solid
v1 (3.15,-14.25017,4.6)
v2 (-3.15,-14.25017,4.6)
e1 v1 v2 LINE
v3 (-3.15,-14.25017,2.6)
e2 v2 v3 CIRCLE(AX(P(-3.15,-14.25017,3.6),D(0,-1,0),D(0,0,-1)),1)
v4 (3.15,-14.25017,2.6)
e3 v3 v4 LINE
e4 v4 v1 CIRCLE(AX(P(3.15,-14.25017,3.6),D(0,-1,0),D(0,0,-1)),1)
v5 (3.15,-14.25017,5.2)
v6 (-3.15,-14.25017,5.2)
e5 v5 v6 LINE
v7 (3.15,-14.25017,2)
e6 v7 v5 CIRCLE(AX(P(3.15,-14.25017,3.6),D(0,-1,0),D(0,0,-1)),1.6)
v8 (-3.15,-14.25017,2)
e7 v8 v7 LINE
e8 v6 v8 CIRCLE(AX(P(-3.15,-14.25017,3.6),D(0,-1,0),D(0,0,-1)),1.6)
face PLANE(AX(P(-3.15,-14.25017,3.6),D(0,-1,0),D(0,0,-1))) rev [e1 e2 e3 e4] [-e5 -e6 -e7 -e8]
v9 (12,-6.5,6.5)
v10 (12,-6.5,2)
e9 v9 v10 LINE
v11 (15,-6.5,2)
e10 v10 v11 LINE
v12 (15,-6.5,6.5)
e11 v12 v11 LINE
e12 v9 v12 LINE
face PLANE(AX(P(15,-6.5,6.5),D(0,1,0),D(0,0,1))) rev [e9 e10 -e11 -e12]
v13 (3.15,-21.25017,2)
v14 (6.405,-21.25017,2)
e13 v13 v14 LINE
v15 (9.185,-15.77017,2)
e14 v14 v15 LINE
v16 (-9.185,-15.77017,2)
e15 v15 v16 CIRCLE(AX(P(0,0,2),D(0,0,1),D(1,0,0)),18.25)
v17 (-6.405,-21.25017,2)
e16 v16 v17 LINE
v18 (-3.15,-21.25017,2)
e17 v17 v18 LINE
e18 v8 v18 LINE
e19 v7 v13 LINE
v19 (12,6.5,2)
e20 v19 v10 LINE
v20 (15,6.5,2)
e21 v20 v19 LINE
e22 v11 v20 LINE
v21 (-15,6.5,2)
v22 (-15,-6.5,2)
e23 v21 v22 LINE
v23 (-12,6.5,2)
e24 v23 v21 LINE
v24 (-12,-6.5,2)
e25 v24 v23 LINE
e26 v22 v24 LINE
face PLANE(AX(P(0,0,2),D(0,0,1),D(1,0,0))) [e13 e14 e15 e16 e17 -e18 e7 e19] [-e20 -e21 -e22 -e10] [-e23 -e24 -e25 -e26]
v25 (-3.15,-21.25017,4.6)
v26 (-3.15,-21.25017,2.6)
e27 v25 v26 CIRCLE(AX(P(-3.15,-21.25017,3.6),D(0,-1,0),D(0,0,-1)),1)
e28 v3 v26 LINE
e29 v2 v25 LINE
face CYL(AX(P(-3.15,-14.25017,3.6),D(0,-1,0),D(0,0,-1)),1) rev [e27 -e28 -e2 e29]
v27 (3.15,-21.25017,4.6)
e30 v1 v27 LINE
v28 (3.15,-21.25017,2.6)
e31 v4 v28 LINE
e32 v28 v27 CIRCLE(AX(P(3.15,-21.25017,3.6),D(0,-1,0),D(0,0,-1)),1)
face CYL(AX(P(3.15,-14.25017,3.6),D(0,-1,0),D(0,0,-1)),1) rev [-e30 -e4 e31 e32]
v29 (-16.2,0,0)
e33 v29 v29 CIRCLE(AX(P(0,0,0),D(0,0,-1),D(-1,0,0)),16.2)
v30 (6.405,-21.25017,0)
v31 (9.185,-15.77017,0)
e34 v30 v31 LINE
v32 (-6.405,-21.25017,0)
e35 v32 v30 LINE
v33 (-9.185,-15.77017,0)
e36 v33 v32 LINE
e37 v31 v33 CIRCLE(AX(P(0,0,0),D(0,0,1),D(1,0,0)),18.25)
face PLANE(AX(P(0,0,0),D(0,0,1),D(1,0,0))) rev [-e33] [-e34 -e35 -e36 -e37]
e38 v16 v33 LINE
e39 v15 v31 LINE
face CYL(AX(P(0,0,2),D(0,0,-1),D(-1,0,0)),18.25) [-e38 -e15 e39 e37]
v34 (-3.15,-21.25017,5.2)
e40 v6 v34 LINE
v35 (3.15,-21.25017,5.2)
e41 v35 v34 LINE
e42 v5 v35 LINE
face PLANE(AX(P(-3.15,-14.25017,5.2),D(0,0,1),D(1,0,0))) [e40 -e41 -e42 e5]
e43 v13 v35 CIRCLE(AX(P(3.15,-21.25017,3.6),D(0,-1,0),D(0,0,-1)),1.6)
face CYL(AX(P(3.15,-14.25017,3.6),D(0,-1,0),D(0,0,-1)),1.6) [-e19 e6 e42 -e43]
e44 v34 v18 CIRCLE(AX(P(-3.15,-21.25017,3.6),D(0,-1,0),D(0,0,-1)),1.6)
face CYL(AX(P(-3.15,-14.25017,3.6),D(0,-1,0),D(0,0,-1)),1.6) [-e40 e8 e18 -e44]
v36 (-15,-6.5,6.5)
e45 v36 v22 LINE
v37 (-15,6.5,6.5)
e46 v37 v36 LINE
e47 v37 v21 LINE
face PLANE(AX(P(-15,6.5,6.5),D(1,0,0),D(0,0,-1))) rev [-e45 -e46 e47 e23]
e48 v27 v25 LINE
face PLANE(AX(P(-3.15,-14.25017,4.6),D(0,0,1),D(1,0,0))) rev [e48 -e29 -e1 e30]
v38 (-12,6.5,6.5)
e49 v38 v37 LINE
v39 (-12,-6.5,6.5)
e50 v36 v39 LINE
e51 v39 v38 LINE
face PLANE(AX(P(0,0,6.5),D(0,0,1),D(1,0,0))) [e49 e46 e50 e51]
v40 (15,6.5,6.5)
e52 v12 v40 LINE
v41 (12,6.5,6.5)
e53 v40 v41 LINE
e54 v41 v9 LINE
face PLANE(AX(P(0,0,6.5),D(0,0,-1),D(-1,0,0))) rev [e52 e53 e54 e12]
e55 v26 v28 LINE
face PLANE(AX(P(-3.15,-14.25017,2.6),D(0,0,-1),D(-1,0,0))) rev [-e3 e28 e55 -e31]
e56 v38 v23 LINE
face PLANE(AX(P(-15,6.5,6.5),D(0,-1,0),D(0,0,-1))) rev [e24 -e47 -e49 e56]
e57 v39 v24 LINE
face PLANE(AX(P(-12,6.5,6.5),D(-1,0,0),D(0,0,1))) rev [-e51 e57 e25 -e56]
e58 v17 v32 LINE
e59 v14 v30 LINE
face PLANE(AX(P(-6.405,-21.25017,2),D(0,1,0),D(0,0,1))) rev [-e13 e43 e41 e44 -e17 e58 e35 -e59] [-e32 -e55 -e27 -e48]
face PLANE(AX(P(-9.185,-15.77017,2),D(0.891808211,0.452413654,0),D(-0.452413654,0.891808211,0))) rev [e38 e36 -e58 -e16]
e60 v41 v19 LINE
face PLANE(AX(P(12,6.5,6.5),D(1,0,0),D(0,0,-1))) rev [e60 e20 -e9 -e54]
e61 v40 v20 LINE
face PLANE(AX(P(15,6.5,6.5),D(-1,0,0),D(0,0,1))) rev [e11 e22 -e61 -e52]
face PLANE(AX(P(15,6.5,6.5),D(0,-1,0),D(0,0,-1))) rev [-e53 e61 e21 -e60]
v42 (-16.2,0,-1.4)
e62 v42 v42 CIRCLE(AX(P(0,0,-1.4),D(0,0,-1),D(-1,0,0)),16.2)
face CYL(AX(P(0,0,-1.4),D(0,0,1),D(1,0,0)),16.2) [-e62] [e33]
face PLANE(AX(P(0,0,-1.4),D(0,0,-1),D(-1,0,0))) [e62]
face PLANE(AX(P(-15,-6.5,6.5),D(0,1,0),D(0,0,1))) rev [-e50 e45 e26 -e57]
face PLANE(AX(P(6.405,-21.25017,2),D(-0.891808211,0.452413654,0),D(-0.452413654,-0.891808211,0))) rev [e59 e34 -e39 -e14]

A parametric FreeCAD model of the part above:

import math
import FreeCAD as App
import Part
import Sketcher
from FreeCAD import Vector

doc = App.newDocument("Part")
body = doc.addObject("PartDesign::Body", "Body")

# Sketch on XY plane
sketch1 = body.newObject("Sketcher::SketchObject", "Sketch")
sketch1.AttachmentSupport = (doc.getObject("XY_Plane"), [""])
sketch1.MapMode = "FlatFace"
sketch1.addGeometry([
    Part.LineSegment(Vector(-6, -21, 0), Vector(6, -21, 0)),
    Part.LineSegment(Vector(6, -21, 0), Vector(9, -16, 0)),
    Part.ArcOfCircle(Part.Circle(Vector(0, 0, 0), Vector(0, 0, 1), 18), math.radians(-60), math.radians(240)),
    Part.LineSegment(Vector(-9, -16, 0), Vector(-6, -21, 0)),
], False)
sketch1.addConstraint([
    Sketcher.Constraint("Coincident", 0, 2, 1, 1),
    Sketcher.Constraint("Coincident", 1, 2, 2, 1),
    Sketcher.Constraint("Coincident", 2, 2, 3, 1),
    Sketcher.Constraint("Coincident", 3, 2, 0, 1),
    Sketcher.Constraint("Horizontal", 0),
    Sketcher.Constraint("Coincident", 2, 3, -1, 1),
    Sketcher.Constraint("Horizontal", 1, 2, 2, 2),
    Sketcher.Constraint("Equal", 1, 3),
    Sketcher.Constraint("Radius", 2, 18.25),
    Sketcher.Constraint("DistanceX", 0, 1, 0, 2, 12.81),
    Sketcher.Constraint("DistanceX", 0, 2, 1, 2, 2.78),
    Sketcher.Constraint("DistanceY", 0, 2, 1, 2, 5.48),
])
pad1 = body.newObject("PartDesign::Pad", "Pad")
pad1.Profile = sketch1
pad1.Length = 2

# Sketch on XY plane
sketch2 = body.newObject("Sketcher::SketchObject", "Sketch001")
sketch2.AttachmentSupport = (doc.getObject("XY_Plane"), [""])
sketch2.MapMode = "FlatFace"
sketch2.addGeometry(Part.Circle(Vector(0, 0, 0), Vector(0, 0, 1), 16), False)
sketch2.addConstraint([
    Sketcher.Constraint("Coincident", 0, 3, -1, 1),
    Sketcher.Constraint("Diameter", 0, 32.4),
])
pad2 = body.newObject("PartDesign::Pad", "Pad001")
pad2.Profile = sketch2
pad2.Length = 1.4
pad2.Reversed = True

# Sketch on XY plane
sketch3 = body.newObject("Sketcher::SketchObject", "Sketch002")
sketch3.AttachmentSupport = (doc.getObject("XY_Plane"), [""])
sketch3.MapMode = "FlatFace"
sketch3.AttachmentOffset = App.Placement(Vector(0, 0, 2), App.Rotation())
sketch3.addGeometry([
    Part.LineSegment(Vector(-15, 6.5, 0), Vector(-15, -6.5, 0)),  # 0
    Part.LineSegment(Vector(-15, -6.5, 0), Vector(-12, -6.5, 0)),  # 1
    Part.LineSegment(Vector(-12, -6.5, 0), Vector(-12, 6.5, 0)),  # 2
    Part.LineSegment(Vector(-12, 6.5, 0), Vector(-15, 6.5, 0)),  # 3
    Part.LineSegment(Vector(12, 6.5, 0), Vector(12, -6.5, 0)),  # 4
    Part.LineSegment(Vector(12, -6.5, 0), Vector(15, -6.5, 0)),  # 5
    Part.LineSegment(Vector(15, -6.5, 0), Vector(15, 6.5, 0)),  # 6
    Part.LineSegment(Vector(15, 6.5, 0), Vector(12, 6.5, 0)),  # 7
], False)
sketch3.addConstraint([
    Sketcher.Constraint("Coincident", 0, 2, 1, 1),
    Sketcher.Constraint("Coincident", 1, 2, 2, 1),
    Sketcher.Constraint("Coincident", 2, 2, 3, 1),
    Sketcher.Constraint("Coincident", 3, 2, 0, 1),
    Sketcher.Constraint("Coincident", 4, 2, 5, 1),
    Sketcher.Constraint("Coincident", 5, 2, 6, 1),
    Sketcher.Constraint("Coincident", 6, 2, 7, 1),
    Sketcher.Constraint("Coincident", 7, 2, 4, 1),
    Sketcher.Constraint("Vertical", 0),
    Sketcher.Constraint("Horizontal", 1),
    Sketcher.Constraint("Vertical", 2),
    Sketcher.Constraint("Horizontal", 3),
    Sketcher.Constraint("Vertical", 4),
    Sketcher.Constraint("Horizontal", 5),
    Sketcher.Constraint("Vertical", 6),
    Sketcher.Constraint("Horizontal", 7),
    Sketcher.Constraint("Symmetric", 2, 2, 4, 2, -1, 1),
    Sketcher.Constraint("Symmetric", 0, 2, 6, 2, -1, 1),
    Sketcher.Constraint("Horizontal", 1, 2, 4, 2),
    Sketcher.Constraint("DistanceX", 1, 1, 1, 2, 3.0),
    Sketcher.Constraint("DistanceY", 0, 2, 0, 1, 13.0),
    Sketcher.Constraint("DistanceX", 0, 2, -1, 1, 15.0),
])
pad3 = body.newObject("PartDesign::Pad", "Pad002")
pad3.Profile = sketch3
pad3.Length = 4.5

# Sketch on XZ plane
sketch4 = body.newObject("Sketcher::SketchObject", "Sketch003")
sketch4.AttachmentSupport = (doc.getObject("XZ_Plane"), [""])
sketch4.MapMode = "FlatFace"
sketch4.AttachmentOffset = App.Placement(Vector(0, 0, 21.25017), App.Rotation())
sketch4.addGeometry([
    Part.LineSegment(Vector(3.1, 5.2, 0), Vector(-3.1, 5.2, 0)),  # 0
    Part.ArcOfCircle(Part.Circle(Vector(-3.1, 3.6, 0), Vector(0, 0, 1), 1.6), math.radians(90), math.radians(270)),  # 1
    Part.LineSegment(Vector(-3.1, 2, 0), Vector(3.1, 2, 0)),  # 2
    Part.ArcOfCircle(Part.Circle(Vector(3.1, 3.6, 0), Vector(0, 0, 1), 1.6), math.radians(-90), math.radians(90)),  # 3
    Part.LineSegment(Vector(-3.1, 4.6, 0), Vector(3.1, 4.6, 0)),  # 4
    Part.ArcOfCircle(Part.Circle(Vector(3.1, 3.6, 0), Vector(0, 0, 1), 1), math.radians(-90), math.radians(90)),  # 5
    Part.LineSegment(Vector(3.1, 2.6, 0), Vector(-3.1, 2.6, 0)),  # 6
    Part.ArcOfCircle(Part.Circle(Vector(-3.1, 3.6, 0), Vector(0, 0, 1), 1), math.radians(90), math.radians(270)),  # 7
], False)
sketch4.addConstraint([
    Sketcher.Constraint("Tangent", 0, 2, 1, 1),
    Sketcher.Constraint("Tangent", 1, 2, 2, 1),
    Sketcher.Constraint("Tangent", 2, 2, 3, 1),
    Sketcher.Constraint("Tangent", 3, 2, 0, 1),
    Sketcher.Constraint("Tangent", 4, 2, 5, 2),
    Sketcher.Constraint("Tangent", 5, 1, 6, 1),
    Sketcher.Constraint("Tangent", 6, 2, 7, 2),
    Sketcher.Constraint("Tangent", 7, 1, 4, 1),
    Sketcher.Constraint("Horizontal", 0),
    Sketcher.Constraint("Horizontal", 2),
    Sketcher.Constraint("Horizontal", 4),
    Sketcher.Constraint("Horizontal", 6),
    Sketcher.Constraint("Coincident", 5, 3, 3, 3),
    Sketcher.Constraint("Vertical", 7, 3, 0, 2),
    Sketcher.Constraint("Radius", 5, 1.0),
    Sketcher.Constraint("Radius", 1, 1.6),
    Sketcher.Constraint("DistanceX", 0, 2, 0, 1, 6.3),
    Sketcher.Constraint("DistanceY", -1, 1, 1, 2, 2.0),
    Sketcher.Constraint("DistanceX", 1, 3, -1, 1, 3.15),
])
pad4 = body.newObject("PartDesign::Pad", "Pad003")
pad4.Profile = sketch4
pad4.Length = 7
pad4.Reversed = True

doc.recompute()
